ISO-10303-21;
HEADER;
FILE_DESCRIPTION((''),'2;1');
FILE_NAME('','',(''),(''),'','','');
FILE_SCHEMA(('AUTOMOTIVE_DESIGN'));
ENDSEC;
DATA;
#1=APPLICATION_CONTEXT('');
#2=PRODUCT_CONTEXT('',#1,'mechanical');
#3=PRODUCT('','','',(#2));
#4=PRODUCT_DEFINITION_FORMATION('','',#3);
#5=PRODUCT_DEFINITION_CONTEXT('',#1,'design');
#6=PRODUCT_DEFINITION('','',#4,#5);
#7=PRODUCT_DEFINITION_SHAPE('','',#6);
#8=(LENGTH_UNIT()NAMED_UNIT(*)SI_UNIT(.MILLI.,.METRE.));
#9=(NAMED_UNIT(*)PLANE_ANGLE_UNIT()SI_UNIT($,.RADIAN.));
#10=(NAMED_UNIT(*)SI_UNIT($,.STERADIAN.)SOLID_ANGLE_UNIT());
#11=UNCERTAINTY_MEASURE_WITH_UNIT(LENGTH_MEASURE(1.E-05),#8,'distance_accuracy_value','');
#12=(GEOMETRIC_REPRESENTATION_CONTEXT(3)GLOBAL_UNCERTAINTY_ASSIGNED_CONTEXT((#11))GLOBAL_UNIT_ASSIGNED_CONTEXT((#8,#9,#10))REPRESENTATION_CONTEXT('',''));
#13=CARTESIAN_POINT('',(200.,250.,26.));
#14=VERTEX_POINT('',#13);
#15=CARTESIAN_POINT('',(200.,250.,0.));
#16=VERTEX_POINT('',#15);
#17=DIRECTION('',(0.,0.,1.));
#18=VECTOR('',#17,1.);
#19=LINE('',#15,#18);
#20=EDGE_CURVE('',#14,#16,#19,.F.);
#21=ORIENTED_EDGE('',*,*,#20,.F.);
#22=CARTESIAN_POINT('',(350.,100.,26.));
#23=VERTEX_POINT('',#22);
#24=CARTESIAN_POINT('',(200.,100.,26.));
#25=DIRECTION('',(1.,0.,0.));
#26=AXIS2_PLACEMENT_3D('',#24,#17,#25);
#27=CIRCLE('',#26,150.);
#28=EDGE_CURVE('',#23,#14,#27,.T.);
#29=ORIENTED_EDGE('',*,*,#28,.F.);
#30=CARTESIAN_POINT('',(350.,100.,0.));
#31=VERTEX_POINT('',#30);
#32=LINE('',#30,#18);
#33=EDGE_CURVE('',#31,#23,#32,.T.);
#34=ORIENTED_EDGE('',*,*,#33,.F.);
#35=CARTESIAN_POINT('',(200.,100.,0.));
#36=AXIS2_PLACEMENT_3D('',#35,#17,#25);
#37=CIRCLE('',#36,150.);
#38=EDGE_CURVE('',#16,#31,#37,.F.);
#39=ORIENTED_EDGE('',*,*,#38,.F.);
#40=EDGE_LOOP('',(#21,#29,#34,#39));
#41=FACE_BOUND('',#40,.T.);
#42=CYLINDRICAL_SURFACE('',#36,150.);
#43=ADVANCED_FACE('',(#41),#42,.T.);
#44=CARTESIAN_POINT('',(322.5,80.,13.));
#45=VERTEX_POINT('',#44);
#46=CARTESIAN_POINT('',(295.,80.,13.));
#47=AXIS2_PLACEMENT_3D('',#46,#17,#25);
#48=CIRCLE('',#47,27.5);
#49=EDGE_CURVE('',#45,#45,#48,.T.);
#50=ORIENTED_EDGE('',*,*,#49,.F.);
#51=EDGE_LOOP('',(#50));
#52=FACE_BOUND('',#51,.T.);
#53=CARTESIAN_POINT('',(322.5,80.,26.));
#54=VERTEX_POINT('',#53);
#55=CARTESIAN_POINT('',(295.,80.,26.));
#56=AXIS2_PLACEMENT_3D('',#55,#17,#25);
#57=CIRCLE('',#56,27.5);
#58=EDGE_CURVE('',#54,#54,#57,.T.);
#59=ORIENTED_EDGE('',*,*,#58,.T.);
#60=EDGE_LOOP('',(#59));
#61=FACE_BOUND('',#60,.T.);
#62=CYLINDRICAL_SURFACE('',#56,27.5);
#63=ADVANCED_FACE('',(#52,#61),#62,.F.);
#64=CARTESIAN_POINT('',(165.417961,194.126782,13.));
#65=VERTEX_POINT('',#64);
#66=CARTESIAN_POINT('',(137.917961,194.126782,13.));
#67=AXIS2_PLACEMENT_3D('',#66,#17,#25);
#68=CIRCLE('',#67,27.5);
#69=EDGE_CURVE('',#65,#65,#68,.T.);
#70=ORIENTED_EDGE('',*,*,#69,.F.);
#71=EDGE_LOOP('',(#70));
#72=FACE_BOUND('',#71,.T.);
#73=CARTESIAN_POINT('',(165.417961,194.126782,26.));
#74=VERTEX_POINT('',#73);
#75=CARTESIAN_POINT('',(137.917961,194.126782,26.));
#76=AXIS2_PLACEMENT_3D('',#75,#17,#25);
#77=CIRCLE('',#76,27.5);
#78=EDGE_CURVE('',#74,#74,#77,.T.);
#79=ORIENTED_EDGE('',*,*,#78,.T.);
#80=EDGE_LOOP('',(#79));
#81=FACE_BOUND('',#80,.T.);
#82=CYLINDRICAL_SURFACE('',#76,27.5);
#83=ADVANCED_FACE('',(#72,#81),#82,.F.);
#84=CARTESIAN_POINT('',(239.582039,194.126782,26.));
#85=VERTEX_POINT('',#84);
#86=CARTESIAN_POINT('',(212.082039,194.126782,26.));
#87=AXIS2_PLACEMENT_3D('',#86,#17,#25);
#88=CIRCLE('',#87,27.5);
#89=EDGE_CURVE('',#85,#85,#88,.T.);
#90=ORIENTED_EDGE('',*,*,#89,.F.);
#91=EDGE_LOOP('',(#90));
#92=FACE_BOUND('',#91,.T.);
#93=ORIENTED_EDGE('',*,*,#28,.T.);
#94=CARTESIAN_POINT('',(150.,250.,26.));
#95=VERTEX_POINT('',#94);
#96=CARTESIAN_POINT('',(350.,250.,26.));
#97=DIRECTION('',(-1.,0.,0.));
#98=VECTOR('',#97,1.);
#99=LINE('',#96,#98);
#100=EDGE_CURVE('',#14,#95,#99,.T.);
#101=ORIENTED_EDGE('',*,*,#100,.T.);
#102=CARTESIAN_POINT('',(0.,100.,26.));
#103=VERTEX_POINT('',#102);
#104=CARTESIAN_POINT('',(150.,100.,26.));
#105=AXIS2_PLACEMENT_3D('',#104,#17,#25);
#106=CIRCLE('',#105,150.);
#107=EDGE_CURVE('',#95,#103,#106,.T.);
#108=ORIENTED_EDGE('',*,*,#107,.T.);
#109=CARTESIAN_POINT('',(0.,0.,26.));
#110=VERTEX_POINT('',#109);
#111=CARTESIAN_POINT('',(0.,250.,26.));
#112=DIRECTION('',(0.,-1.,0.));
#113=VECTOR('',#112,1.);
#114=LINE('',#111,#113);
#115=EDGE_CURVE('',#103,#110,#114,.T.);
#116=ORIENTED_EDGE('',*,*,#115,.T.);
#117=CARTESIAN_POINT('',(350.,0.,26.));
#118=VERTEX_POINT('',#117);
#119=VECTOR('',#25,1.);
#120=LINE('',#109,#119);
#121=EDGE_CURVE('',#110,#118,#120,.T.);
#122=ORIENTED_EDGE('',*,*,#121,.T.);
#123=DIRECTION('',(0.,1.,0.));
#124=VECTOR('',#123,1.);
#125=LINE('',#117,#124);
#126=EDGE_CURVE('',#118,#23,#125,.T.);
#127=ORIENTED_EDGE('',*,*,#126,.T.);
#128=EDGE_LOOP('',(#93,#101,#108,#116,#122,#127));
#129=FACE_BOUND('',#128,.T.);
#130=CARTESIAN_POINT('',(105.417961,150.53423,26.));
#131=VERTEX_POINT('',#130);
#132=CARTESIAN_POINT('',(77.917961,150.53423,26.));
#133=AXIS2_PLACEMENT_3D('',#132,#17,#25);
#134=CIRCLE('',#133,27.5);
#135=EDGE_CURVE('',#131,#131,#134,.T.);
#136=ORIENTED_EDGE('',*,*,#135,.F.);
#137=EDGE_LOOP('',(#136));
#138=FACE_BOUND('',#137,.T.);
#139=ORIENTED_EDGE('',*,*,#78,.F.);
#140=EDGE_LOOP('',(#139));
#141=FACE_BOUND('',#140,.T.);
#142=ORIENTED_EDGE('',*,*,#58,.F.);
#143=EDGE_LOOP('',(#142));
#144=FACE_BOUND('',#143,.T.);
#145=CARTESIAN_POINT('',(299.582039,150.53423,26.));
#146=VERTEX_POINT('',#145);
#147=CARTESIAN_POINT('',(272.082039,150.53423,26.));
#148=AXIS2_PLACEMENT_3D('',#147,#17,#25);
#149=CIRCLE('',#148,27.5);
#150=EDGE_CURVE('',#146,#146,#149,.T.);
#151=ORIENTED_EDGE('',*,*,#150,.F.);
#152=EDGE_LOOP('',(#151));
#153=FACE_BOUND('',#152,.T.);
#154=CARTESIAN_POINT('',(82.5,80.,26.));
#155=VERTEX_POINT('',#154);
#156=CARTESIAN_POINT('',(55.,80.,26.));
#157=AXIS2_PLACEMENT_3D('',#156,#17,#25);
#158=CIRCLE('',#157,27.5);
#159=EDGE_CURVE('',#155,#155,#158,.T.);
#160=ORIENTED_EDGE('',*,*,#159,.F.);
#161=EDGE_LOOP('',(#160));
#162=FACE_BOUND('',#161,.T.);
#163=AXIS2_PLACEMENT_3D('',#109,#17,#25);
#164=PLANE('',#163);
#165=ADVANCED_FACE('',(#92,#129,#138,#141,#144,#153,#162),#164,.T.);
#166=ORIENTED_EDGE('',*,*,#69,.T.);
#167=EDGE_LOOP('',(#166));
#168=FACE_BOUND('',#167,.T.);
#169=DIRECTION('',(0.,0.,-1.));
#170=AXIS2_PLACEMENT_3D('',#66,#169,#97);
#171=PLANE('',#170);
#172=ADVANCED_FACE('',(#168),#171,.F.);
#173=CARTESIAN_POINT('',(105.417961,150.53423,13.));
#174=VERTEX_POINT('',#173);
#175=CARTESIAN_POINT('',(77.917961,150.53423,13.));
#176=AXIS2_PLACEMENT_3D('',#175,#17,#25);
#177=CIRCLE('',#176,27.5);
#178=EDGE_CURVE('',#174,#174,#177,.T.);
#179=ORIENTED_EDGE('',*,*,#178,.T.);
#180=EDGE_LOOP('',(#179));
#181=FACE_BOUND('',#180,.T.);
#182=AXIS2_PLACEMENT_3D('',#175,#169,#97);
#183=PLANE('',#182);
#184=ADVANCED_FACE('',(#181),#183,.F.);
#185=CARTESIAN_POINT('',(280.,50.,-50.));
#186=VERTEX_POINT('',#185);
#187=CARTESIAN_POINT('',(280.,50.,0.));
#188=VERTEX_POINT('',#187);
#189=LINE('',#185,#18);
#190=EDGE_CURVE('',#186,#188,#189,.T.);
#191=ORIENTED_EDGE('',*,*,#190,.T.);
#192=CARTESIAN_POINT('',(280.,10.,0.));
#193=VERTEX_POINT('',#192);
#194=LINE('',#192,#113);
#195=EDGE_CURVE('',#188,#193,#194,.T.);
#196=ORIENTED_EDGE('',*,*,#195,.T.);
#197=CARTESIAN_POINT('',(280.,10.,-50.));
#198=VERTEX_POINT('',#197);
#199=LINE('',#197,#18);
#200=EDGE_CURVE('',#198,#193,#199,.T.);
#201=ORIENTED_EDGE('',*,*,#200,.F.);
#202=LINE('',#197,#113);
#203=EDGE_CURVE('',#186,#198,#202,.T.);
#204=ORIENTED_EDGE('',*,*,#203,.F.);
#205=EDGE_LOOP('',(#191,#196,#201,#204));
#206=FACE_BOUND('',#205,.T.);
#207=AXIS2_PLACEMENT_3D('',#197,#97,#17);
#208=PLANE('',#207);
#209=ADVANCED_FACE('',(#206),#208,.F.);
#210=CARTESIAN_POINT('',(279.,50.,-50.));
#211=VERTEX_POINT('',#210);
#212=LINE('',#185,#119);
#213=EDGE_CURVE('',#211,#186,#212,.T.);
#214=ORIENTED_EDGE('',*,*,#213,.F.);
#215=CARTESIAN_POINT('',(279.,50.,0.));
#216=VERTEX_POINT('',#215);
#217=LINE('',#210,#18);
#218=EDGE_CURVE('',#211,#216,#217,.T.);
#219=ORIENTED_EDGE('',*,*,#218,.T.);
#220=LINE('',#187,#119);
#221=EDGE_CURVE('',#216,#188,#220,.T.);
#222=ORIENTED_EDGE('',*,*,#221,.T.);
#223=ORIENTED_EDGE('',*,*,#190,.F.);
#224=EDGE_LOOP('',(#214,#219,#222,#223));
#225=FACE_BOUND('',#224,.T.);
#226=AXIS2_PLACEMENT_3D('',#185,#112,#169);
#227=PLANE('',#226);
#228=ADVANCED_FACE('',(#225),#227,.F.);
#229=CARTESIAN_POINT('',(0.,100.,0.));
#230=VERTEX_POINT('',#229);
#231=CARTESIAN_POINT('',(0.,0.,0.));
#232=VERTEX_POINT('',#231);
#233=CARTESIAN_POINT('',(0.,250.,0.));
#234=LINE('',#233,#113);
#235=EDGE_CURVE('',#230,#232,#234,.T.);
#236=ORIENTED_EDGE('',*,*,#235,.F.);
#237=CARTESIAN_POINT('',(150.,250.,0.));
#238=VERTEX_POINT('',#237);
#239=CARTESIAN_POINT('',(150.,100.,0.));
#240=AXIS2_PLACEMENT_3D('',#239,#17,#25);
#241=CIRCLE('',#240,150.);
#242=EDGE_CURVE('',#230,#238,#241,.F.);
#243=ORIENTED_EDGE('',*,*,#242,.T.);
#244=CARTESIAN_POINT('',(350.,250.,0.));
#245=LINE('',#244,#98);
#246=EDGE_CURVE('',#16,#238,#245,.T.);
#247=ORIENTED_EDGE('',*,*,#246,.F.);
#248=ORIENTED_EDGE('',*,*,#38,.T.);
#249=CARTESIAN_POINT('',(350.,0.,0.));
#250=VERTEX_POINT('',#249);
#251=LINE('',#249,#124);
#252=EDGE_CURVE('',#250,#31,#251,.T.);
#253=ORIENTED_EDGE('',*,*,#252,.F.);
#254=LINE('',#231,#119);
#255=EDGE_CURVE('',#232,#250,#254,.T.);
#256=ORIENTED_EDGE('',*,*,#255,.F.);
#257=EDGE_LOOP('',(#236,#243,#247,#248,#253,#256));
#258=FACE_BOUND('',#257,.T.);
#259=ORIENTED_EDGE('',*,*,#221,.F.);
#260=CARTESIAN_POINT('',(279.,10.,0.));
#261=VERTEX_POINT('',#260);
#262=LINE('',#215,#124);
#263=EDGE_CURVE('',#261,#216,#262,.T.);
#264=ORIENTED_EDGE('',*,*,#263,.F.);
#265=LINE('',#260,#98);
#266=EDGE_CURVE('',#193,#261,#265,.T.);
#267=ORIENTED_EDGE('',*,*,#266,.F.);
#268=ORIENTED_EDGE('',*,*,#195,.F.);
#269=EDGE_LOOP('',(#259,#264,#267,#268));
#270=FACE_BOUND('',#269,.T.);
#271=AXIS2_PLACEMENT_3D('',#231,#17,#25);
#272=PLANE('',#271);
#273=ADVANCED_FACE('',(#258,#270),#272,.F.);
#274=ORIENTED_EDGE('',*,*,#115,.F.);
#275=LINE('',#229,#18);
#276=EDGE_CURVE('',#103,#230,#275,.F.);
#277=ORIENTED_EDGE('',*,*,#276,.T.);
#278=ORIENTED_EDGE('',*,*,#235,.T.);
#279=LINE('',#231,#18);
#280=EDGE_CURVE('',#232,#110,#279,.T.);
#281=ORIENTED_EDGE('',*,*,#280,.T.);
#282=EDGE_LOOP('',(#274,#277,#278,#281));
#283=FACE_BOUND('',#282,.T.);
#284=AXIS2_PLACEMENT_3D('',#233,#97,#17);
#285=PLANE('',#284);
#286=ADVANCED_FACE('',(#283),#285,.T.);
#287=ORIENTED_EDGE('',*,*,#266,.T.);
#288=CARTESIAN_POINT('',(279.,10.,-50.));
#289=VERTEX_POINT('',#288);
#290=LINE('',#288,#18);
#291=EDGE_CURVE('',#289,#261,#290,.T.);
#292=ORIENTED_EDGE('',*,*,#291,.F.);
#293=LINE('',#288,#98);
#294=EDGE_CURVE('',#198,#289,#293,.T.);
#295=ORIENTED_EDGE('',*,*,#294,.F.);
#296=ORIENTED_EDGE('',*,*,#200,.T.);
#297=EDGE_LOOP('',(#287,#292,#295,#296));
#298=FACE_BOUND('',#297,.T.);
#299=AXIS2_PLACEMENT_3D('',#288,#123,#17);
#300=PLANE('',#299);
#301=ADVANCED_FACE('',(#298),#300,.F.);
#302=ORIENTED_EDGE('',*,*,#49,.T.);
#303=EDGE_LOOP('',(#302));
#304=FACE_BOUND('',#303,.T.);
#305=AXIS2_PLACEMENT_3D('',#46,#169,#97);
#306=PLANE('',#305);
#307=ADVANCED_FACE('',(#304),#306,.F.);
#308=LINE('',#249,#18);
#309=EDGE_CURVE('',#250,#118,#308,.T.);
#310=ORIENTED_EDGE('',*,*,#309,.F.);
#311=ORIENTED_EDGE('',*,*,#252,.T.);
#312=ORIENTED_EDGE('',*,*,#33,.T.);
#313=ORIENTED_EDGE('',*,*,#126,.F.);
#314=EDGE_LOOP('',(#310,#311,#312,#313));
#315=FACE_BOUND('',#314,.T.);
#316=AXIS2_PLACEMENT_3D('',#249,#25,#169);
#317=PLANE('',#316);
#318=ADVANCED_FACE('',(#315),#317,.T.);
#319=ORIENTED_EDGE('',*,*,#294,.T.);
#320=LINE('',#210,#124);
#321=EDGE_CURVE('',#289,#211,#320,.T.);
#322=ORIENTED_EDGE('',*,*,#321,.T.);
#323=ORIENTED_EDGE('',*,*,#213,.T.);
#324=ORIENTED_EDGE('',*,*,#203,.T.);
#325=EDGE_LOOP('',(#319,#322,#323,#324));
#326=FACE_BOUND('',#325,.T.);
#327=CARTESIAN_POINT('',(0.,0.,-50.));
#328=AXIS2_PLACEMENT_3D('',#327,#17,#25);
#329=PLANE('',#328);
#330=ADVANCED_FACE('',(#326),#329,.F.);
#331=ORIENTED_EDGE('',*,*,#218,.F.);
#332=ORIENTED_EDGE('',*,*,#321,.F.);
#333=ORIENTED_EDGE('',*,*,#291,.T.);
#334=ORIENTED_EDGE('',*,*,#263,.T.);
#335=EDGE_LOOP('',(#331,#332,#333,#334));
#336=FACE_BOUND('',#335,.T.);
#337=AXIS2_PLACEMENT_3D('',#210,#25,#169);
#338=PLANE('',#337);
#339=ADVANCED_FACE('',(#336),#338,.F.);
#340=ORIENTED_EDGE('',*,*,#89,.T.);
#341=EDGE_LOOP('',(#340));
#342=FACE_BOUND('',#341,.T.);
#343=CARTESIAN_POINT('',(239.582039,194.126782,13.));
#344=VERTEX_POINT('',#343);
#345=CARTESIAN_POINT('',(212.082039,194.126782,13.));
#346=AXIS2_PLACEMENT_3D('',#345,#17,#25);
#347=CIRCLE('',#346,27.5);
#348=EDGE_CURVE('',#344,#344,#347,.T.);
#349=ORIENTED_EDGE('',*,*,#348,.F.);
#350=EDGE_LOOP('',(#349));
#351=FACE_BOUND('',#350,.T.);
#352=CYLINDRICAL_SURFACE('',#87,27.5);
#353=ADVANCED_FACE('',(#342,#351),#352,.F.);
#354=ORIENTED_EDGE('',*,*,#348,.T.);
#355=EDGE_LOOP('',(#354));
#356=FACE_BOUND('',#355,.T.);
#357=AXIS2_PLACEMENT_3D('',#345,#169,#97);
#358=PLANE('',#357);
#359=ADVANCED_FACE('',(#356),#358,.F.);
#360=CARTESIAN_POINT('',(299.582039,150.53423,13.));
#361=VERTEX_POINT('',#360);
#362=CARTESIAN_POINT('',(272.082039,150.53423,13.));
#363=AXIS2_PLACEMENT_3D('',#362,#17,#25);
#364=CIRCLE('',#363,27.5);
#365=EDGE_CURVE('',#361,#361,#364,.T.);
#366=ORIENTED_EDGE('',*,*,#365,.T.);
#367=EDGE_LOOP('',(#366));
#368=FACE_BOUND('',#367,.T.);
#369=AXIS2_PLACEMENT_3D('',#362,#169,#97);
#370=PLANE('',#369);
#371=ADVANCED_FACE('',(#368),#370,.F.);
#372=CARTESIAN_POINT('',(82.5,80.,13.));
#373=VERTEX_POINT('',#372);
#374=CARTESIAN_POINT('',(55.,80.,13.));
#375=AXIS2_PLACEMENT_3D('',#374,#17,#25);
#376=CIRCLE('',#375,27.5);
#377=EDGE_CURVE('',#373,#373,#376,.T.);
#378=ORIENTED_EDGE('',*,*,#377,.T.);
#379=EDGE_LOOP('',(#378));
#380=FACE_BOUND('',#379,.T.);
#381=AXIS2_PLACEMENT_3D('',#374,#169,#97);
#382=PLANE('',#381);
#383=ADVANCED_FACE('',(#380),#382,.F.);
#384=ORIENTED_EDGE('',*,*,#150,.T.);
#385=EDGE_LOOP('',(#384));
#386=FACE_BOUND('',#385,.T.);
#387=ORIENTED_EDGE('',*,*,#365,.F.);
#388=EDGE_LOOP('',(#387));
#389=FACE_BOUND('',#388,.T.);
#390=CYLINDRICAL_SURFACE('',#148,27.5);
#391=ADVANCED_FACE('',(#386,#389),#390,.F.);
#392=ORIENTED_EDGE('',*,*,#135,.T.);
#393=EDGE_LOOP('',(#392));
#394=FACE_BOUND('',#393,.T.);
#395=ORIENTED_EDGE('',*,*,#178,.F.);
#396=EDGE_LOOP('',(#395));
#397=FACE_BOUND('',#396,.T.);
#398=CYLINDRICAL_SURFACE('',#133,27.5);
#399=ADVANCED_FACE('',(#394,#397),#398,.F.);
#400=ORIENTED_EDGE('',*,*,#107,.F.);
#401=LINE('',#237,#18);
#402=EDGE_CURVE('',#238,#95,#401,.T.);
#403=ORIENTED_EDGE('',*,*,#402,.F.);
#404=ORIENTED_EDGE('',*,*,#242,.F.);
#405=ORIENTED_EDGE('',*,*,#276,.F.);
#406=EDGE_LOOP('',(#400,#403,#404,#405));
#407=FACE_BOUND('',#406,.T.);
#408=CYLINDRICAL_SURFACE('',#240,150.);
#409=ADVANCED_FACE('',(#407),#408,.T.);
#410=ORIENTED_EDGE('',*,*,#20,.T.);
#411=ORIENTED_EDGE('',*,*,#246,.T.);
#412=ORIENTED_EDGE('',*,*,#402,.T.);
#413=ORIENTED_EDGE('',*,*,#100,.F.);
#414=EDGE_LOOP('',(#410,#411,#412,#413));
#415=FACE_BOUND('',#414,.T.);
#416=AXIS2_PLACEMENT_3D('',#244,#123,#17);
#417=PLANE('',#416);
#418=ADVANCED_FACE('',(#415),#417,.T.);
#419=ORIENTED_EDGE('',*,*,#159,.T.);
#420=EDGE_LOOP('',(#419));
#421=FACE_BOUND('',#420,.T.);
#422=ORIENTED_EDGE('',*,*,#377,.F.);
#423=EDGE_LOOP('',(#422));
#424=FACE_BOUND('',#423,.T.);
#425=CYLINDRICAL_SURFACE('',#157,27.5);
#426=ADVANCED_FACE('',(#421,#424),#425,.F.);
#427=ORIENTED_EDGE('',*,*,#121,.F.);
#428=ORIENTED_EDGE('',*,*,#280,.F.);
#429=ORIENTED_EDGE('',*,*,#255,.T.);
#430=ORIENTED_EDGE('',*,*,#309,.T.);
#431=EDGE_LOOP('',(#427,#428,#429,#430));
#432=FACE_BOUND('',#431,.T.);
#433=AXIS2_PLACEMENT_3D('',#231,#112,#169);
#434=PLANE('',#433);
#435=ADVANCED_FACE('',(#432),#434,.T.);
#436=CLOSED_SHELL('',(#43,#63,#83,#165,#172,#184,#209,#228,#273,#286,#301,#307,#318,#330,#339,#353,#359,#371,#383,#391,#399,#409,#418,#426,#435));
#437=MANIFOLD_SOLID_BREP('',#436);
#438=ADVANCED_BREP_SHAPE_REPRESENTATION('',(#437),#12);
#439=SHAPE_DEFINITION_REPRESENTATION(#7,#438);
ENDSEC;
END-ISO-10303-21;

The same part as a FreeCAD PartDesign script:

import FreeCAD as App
import Part
import Sketcher
Q = App.Units.Quantity


def edges_at(feature, points):
    """Names of the edges that pass closest to the given points."""
    edges = feature.Shape.Edges
    near = lambda p: min(range(len(edges)), key=lambda i: edges[i].distToShape(Part.Vertex(*p))[0])
    return sorted({f"Edge{near(p) + 1}" for p in points})


def add_polygon(sketch, points):
    """Adds a closed chain of lines whose ends are joined by coincident constraints."""
    first, n = sketch.GeometryCount, len(points)
    for a, b in zip(points, points[1:] + points[:1]):
        sketch.addGeometry(Part.LineSegment(App.Vector(*a, 0), App.Vector(*b, 0)), False)
    for i in range(n):
        sketch.addConstraint(Sketcher.Constraint("Coincident", first + i, 2, first + (i + 1) % n, 1))

doc = App.newDocument("Part")
params = doc.addObject("Spreadsheet::Sheet", "Params")
for row, (alias, value) in enumerate([
    ("sketch1_width", "350 mm"),
    ("sketch1_height", "250 mm"),
    ("pad1_length", "26 mm"),
    ("sketch2_width", "1 mm"),
    ("sketch2_height", "40 mm"),
    ("pad2_length", "50 mm"),
    ("sketch3_diameter", "55 mm"),
    ("hole_diameter", "55 mm"),
    ("hole_depth", "13 mm"),
    ("fillet_radius", "150 mm"),
], start=1):
    params.set(f"A{row}", alias)
    params.set(f"B{row}", "=" + value)
    params.setAlias(f"B{row}", alias)

body = doc.addObject("PartDesign::Body", "Body")

sketch1 = doc.addObject("Sketcher::SketchObject", "Sketch")
body.addObject(sketch1)
sketch1.AttachmentSupport = (doc.XY_Plane, [""])
sketch1.MapMode = "FlatFace"
sketch1.AttachmentOffset = App.Placement(App.Vector(0, 0, 26), App.Rotation())
add_polygon(sketch1, [(0, 250), (0, 0), (350, 0), (350, 250)])
sketch1.addConstraint([
    Sketcher.Constraint("Vertical", 0),
    Sketcher.Constraint("Horizontal", 1),
    Sketcher.Constraint("Vertical", 2),
    Sketcher.Constraint("Horizontal", 3),
    Sketcher.Constraint("Coincident", 0, 2, -1, 1),
    Sketcher.Constraint("DistanceX", 1, 1, 1, 2, Q("350 mm")),
    Sketcher.Constraint("DistanceY", 0, 2, 0, 1, Q("250 mm")),
])
sketch1.setExpression("Constraints[9]", "Params.sketch1_width")
sketch1.setExpression("Constraints[10]", "Params.sketch1_height")
pad1 = doc.addObject("PartDesign::Pad", "Pad")
body.addObject(pad1)
pad1.Profile = sketch1
pad1.setExpression("Length", "Params.pad1_length")
pad1.Reversed = True

sketch2 = doc.addObject("Sketcher::SketchObject", "Sketch001")
body.addObject(sketch2)
sketch2.AttachmentSupport = (doc.XY_Plane, [""])
sketch2.MapMode = "FlatFace"
add_polygon(sketch2, [(280, 50), (280, 10), (279, 10), (279, 50)])
sketch2.addConstraint([
    Sketcher.Constraint("Vertical", 0),
    Sketcher.Constraint("Horizontal", 1),
    Sketcher.Constraint("Vertical", 2),
    Sketcher.Constraint("Horizontal", 3),
    Sketcher.Constraint("DistanceX", 1, 2, 1, 1, Q("1 mm")),
    Sketcher.Constraint("DistanceY", 0, 2, 0, 1, Q("40 mm")),
    Sketcher.Constraint("DistanceX", -1, 1, 0, 2, Q("280 mm")),
    Sketcher.Constraint("DistanceY", -1, 1, 0, 2, Q("10 mm")),
])
sketch2.setExpression("Constraints[8]", "Params.sketch2_width")
sketch2.setExpression("Constraints[9]", "Params.sketch2_height")
pad2 = doc.addObject("PartDesign::Pad", "Pad001")
body.addObject(pad2)
pad2.Profile = sketch2
pad2.setExpression("Length", "Params.pad2_length")
pad2.Reversed = True

sketch3 = doc.addObject("Sketcher::SketchObject", "Sketch002")
body.addObject(sketch3)
sketch3.AttachmentSupport = (doc.XY_Plane, [""])
sketch3.MapMode = "FlatFace"
sketch3.AttachmentOffset = App.Placement(App.Vector(0, 0, 26), App.Rotation())
sketch3.addGeometry([
    Part.Circle(App.Vector(55, 80, 0), App.Vector(0, 0, 1), 28),
    Part.Circle(App.Vector(212, 194, 0), App.Vector(0, 0, 1), 28),
    Part.Circle(App.Vector(272, 151, 0), App.Vector(0, 0, 1), 28),
    Part.Circle(App.Vector(295, 80, 0), App.Vector(0, 0, 1), 28),
    Part.Circle(App.Vector(138, 194, 0), App.Vector(0, 0, 1), 28),
    Part.Circle(App.Vector(78, 151, 0), App.Vector(0, 0, 1), 28),
], False)
sketch3.addConstraint([
    Sketcher.Constraint("Equal", 0, 1),
    Sketcher.Constraint("Equal", 1, 2),
    Sketcher.Constraint("Equal", 2, 3),
    Sketcher.Constraint("Equal", 3, 4),
    Sketcher.Constraint("Equal", 4, 5),
    Sketcher.Constraint("Horizontal", 0, 3, 3, 3),
    Sketcher.Constraint("Horizontal", 1, 3, 4, 3),
    Sketcher.Constraint("Horizontal", 2, 3, 5, 3),
    Sketcher.Constraint("Diameter", 0, Q("55 mm")),
    Sketcher.Constraint("DistanceX", -1, 1, 0, 3, Q("55 mm")),
    Sketcher.Constraint("DistanceY", -1, 1, 0, 3, Q("80 mm")),
    Sketcher.Constraint("DistanceX", -1, 1, 3, 3, Q("295 mm")),
    Sketcher.Constraint("DistanceX", 1, 3, 2, 3, Q("60 mm")),
    Sketcher.Constraint("DistanceX", 5, 3, 4, 3, Q("60 mm")),
    Sketcher.Constraint("DistanceX", -1, 1, 1, 3, Q("212.082039 mm")),
    Sketcher.Constraint("DistanceY", -1, 1, 1, 3, Q("194.126782 mm")),
    Sketcher.Constraint("DistanceY", -1, 1, 2, 3, Q("150.53423 mm")),
    Sketcher.Constraint("DistanceX", -1, 1, 4, 3, Q("137.917961 mm")),
])
sketch3.setExpression("Constraints[8]", "Params.sketch3_diameter")
doc.recompute()
hole = doc.addObject("PartDesign::Hole", "Hole")
body.addObject(hole)
hole.Profile = sketch3
hole.ThreadType = "None"
hole.setExpression("Diameter", "Params.hole_diameter")
hole.DepthType = "Dimension"
hole.setExpression("Depth", "Params.hole_depth")
hole.DrillPoint = "Flat"
doc.recompute()

fillet = doc.addObject("PartDesign::Fillet", "Fillet")
body.addObject(fillet)
fillet.Base = (hole, edges_at(hole, [(0, 250, 13), (350, 250, 13)]))
fillet.setExpression("Radius", "Params.fillet_radius")

doc.recompute()
